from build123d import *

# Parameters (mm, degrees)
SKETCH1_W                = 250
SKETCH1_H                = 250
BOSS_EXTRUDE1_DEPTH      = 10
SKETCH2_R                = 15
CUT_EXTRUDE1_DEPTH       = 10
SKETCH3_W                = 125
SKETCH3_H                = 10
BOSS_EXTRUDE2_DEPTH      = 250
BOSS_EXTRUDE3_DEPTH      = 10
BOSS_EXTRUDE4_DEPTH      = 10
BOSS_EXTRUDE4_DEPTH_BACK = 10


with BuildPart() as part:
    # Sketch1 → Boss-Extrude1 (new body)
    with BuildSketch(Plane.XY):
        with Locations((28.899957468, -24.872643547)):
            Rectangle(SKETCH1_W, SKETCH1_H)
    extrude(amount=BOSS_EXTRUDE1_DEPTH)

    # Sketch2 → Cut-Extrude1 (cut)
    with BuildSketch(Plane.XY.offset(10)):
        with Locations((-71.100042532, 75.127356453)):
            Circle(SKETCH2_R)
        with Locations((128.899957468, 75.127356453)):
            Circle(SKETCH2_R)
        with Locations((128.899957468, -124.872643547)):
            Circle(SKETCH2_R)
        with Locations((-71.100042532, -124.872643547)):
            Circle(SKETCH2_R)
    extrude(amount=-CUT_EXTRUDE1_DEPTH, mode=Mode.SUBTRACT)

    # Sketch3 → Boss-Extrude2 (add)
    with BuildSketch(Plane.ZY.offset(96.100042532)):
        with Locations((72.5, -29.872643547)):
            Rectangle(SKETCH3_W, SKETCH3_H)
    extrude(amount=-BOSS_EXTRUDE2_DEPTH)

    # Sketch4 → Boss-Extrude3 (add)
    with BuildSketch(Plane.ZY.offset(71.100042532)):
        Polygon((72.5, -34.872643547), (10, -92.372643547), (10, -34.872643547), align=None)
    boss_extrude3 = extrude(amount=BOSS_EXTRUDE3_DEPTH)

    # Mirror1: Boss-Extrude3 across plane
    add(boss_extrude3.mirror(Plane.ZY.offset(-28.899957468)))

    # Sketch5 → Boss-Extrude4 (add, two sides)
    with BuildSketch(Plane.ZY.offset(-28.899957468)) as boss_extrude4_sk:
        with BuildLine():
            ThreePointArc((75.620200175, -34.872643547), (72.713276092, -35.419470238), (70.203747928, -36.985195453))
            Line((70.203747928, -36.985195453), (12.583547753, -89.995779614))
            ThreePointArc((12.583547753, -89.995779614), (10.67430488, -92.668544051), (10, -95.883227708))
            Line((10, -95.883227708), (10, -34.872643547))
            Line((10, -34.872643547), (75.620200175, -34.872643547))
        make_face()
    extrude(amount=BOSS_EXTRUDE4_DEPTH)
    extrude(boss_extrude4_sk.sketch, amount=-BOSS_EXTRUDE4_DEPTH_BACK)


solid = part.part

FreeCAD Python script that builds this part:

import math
import FreeCAD as App
import Part
import Sketcher
from FreeCAD import Vector

doc = App.newDocument("Part")
body = doc.addObject("PartDesign::Body", "Body")

# Sketch on XY plane
sketch1 = body.newObject("Sketcher::SketchObject", "Sketch")
sketch1.AttachmentSupport = (doc.getObject("XY_Plane"), [""])
sketch1.MapMode = "FlatFace"
sketch1.addGeometry([
    Part.LineSegment(Vector(-96, 100, 0), Vector(-96, -150, 0)),
    Part.LineSegment(Vector(-96, -150, 0), Vector(154, -150, 0)),
    Part.LineSegment(Vector(154, -150, 0), Vector(154, 100, 0)),
    Part.LineSegment(Vector(154, 100, 0), Vector(-96, 100, 0)),
], False)
sketch1.addConstraint([
    Sketcher.Constraint("Coincident", 0, 2, 1, 1),
    Sketcher.Constraint("Coincident", 1, 2, 2, 1),
    Sketcher.Constraint("Coincident", 2, 2, 3, 1),
    Sketcher.Constraint("Coincident", 3, 2, 0, 1),
    Sketcher.Constraint("Vertical", 0),
    Sketcher.Constraint("Horizontal", 1),
    Sketcher.Constraint("Vertical", 2),
    Sketcher.Constraint("Horizontal", 3),
    Sketcher.Constraint("Equal", 3, 0),
    Sketcher.Constraint("DistanceX", 1, 1, 1, 2, 250.0),
    Sketcher.Constraint("DistanceX", 0, 2, -1, 1, 96.100043),
    Sketcher.Constraint("DistanceY", 0, 2, -1, 1, 149.872644),
])
pad1 = body.newObject("PartDesign::Pad", "Pad")
pad1.Profile = sketch1
pad1.Length = 10

# Sketch on XY plane
sketch2 = body.newObject("Sketcher::SketchObject", "Sketch001")
sketch2.AttachmentSupport = (doc.getObject("XY_Plane"), [""])
sketch2.MapMode = "FlatFace"
sketch2.AttachmentOffset = App.Placement(Vector(0, 0, 10), App.Rotation())
sketch2.addGeometry([
    Part.Circle(Vector(-71, 75, 0), Vector(0, 0, 1), 15),
    Part.Circle(Vector(129, 75, 0), Vector(0, 0, 1), 15),
    Part.Circle(Vector(129, -125, 0), Vector(0, 0, 1), 15),
    Part.Circle(Vector(-71, -125, 0), Vector(0, 0, 1), 15),
], False)
sketch2.addConstraint([
    Sketcher.Constraint("Equal", 0, 1),
    Sketcher.Constraint("Equal", 1, 2),
    Sketcher.Constraint("Equal", 2, 3),
    Sketcher.Constraint("Horizontal", 0, 3, 1, 3),
    Sketcher.Constraint("Horizontal", 2, 3, 3, 3),
    Sketcher.Constraint("Vertical", 1, 3, 2, 3),
    Sketcher.Constraint("Vertical", 0, 3, 3, 3),
    Sketcher.Constraint("Diameter", 0, 30.0),
    Sketcher.Constraint("DistanceX", 0, 3, 1, 3, 200.0),
    Sketcher.Constraint("DistanceY", 2, 3, 1, 3, 200.0),
    Sketcher.Constraint("DistanceX", 0, 3, -1, 1, 71.100043),
    Sketcher.Constraint("DistanceY", -1, 1, 0, 3, 75.127356),
])
pocket1 = body.newObject("PartDesign::Pocket", "Pocket")
pocket1.Profile = sketch2
pocket1.Length = 10

# Sketch on YZ plane
sketch3 = body.newObject("Sketcher::SketchObject", "Sketch002")
sketch3.AttachmentSupport = (doc.getObject("YZ_Plane"), [""])
sketch3.MapMode = "FlatFace"
sketch3.AttachmentOffset = App.Placement(Vector(0, 0, -96.100043), App.Rotation())
sketch3.addGeometry([
    Part.LineSegment(Vector(-25, 10, 0), Vector(-35, 10, 0)),
    Part.LineSegment(Vector(-35, 10, 0), Vector(-35, 135, 0)),
    Part.LineSegment(Vector(-35, 135, 0), Vector(-25, 135, 0)),
    Part.LineSegment(Vector(-25, 135, 0), Vector(-25, 10, 0)),
], False)
sketch3.addConstraint([
    Sketcher.Constraint("Coincident", 0, 2, 1, 1),
    Sketcher.Constraint("Coincident", 1, 2, 2, 1),
    Sketcher.Constraint("Coincident", 2, 2, 3, 1),
    Sketcher.Constraint("Coincident", 3, 2, 0, 1),
    Sketcher.Constraint("Horizontal", 0),
    Sketcher.Constraint("Vertical", 1),
    Sketcher.Constraint("Horizontal", 2),
    Sketcher.Constraint("Vertical", 3),
    Sketcher.Constraint("DistanceX", 0, 2, 0, 1, 10.0),
    Sketcher.Constraint("DistanceY", 1, 1, 1, 2, 125.0),
    Sketcher.Constraint("DistanceY", -1, 1, 0, 2, 10.0),
    Sketcher.Constraint("DistanceX", 0, 2, -1, 1, 34.872644),
])
pad2 = body.newObject("PartDesign::Pad", "Pad001")
pad2.Profile = sketch3
pad2.Length = 250

# Sketch on YZ plane
sketch4 = body.newObject("Sketcher::SketchObject", "Sketch003")
sketch4.AttachmentSupport = (doc.getObject("YZ_Plane"), [""])
sketch4.MapMode = "FlatFace"
sketch4.AttachmentOffset = App.Placement(Vector(0, 0, -71.100043), App.Rotation())
sketch4.addGeometry([
    Part.LineSegment(Vector(-92, 10, 0), Vector(-35, 72, 0)),
    Part.LineSegment(Vector(-35, 72, 0), Vector(-35, 10, 0)),
    Part.LineSegment(Vector(-35, 10, 0), Vector(-92, 10, 0)),
], False)
sketch4.addConstraint([
    Sketcher.Constraint("Coincident", 0, 2, 1, 1),
    Sketcher.Constraint("Coincident", 1, 2, 2, 1),
    Sketcher.Constraint("Coincident", 2, 2, 0, 1),
    Sketcher.Constraint("Vertical", 1),
    Sketcher.Constraint("Horizontal", 2),
    Sketcher.Constraint("DistanceX", 2, 2, 2, 1, 57.5),
    Sketcher.Constraint("DistanceY", 1, 2, 1, 1, 62.5),
    Sketcher.Constraint("DistanceY", -1, 1, 1, 2, 10.0),
    Sketcher.Constraint("DistanceX", 0, 2, -1, 1, 34.872644),
])
pad3 = body.newObject("PartDesign::Pad", "Pad002")
pad3.Profile = sketch4
pad3.Length = 10
pad3.Reversed = True
doc.recompute()

datumplane = body.newObject("PartDesign::Plane", "DatumPlane")
datumplane.AttachmentSupport = (doc.getObject("YZ_Plane"), [""])
datumplane.MapMode = "FlatFace"
datumplane.AttachmentOffset = App.Placement(Vector(0, 0, 28.899957), App.Rotation())
mirrored = body.newObject("PartDesign::Mirrored", "Mirrored")
mirrored.Originals = [pad3]
mirrored.MirrorPlane = (datumplane, [""])
body.Tip = mirrored

# Sketch on YZ plane
sketch5 = body.newObject("Sketcher::SketchObject", "Sketch004")
sketch5.AttachmentSupport = (doc.getObject("YZ_Plane"), [""])
sketch5.MapMode = "FlatFace"
sketch5.AttachmentOffset = App.Placement(Vector(0, 0, 28.899957), App.Rotation())
sketch5.addGeometry([
    Part.ArcOfCircle(Part.Circle(Vector(-43, 76, 0), Vector(0, 0, 1), 8), math.radians(-43), math.radians(0)),  # 0
    Part.LineSegment(Vector(-35, 76, 0), Vector(-35, 10, 0)),  # 1
    Part.LineSegment(Vector(-35, 10, 0), Vector(-96, 10, 0)),  # 2
    Part.ArcOfCircle(Part.Circle(Vector(-96, 18, 0), Vector(0, 0, 1), 8), math.radians(-90), math.radians(-43)),  # 3
    Part.LineSegment(Vector(-90, 13, 0), Vector(-37, 70, 0)),  # 4
], False)
sketch5.addConstraint([
    Sketcher.Constraint("Tangent", 0, 2, 1, 1),
    Sketcher.Constraint("Coincident", 1, 2, 2, 1),
    Sketcher.Constraint("Tangent", 2, 2, 3, 1),
    Sketcher.Constraint("Tangent", 3, 2, 4, 1),
    Sketcher.Constraint("Tangent", 4, 2, 0, 1),
    Sketcher.Constraint("Vertical", 1),
    Sketcher.Constraint("Horizontal", 2),
    Sketcher.Constraint("Equal", 0, 3),
    Sketcher.Constraint("Radius", 0, 8.0),
    Sketcher.Constraint("DistanceY", -1, 1, 3, 3, 18.0),
    Sketcher.Constraint("DistanceY", 1, 2, 1, 1, 65.6202),
    Sketcher.Constraint("DistanceX", 2, 2, 2, 1, 61.010584),
    Sketcher.Constraint("DistanceX", 3, 2, -1, 1, 89.99578),
])
pad4 = body.newObject("PartDesign::Pad", "Pad003")
pad4.Profile = sketch5
pad4.Type = "TwoLengths"
pad4.Length = 10
pad4.Length2 = 10
pad4.Reversed = True

doc.recompute()
